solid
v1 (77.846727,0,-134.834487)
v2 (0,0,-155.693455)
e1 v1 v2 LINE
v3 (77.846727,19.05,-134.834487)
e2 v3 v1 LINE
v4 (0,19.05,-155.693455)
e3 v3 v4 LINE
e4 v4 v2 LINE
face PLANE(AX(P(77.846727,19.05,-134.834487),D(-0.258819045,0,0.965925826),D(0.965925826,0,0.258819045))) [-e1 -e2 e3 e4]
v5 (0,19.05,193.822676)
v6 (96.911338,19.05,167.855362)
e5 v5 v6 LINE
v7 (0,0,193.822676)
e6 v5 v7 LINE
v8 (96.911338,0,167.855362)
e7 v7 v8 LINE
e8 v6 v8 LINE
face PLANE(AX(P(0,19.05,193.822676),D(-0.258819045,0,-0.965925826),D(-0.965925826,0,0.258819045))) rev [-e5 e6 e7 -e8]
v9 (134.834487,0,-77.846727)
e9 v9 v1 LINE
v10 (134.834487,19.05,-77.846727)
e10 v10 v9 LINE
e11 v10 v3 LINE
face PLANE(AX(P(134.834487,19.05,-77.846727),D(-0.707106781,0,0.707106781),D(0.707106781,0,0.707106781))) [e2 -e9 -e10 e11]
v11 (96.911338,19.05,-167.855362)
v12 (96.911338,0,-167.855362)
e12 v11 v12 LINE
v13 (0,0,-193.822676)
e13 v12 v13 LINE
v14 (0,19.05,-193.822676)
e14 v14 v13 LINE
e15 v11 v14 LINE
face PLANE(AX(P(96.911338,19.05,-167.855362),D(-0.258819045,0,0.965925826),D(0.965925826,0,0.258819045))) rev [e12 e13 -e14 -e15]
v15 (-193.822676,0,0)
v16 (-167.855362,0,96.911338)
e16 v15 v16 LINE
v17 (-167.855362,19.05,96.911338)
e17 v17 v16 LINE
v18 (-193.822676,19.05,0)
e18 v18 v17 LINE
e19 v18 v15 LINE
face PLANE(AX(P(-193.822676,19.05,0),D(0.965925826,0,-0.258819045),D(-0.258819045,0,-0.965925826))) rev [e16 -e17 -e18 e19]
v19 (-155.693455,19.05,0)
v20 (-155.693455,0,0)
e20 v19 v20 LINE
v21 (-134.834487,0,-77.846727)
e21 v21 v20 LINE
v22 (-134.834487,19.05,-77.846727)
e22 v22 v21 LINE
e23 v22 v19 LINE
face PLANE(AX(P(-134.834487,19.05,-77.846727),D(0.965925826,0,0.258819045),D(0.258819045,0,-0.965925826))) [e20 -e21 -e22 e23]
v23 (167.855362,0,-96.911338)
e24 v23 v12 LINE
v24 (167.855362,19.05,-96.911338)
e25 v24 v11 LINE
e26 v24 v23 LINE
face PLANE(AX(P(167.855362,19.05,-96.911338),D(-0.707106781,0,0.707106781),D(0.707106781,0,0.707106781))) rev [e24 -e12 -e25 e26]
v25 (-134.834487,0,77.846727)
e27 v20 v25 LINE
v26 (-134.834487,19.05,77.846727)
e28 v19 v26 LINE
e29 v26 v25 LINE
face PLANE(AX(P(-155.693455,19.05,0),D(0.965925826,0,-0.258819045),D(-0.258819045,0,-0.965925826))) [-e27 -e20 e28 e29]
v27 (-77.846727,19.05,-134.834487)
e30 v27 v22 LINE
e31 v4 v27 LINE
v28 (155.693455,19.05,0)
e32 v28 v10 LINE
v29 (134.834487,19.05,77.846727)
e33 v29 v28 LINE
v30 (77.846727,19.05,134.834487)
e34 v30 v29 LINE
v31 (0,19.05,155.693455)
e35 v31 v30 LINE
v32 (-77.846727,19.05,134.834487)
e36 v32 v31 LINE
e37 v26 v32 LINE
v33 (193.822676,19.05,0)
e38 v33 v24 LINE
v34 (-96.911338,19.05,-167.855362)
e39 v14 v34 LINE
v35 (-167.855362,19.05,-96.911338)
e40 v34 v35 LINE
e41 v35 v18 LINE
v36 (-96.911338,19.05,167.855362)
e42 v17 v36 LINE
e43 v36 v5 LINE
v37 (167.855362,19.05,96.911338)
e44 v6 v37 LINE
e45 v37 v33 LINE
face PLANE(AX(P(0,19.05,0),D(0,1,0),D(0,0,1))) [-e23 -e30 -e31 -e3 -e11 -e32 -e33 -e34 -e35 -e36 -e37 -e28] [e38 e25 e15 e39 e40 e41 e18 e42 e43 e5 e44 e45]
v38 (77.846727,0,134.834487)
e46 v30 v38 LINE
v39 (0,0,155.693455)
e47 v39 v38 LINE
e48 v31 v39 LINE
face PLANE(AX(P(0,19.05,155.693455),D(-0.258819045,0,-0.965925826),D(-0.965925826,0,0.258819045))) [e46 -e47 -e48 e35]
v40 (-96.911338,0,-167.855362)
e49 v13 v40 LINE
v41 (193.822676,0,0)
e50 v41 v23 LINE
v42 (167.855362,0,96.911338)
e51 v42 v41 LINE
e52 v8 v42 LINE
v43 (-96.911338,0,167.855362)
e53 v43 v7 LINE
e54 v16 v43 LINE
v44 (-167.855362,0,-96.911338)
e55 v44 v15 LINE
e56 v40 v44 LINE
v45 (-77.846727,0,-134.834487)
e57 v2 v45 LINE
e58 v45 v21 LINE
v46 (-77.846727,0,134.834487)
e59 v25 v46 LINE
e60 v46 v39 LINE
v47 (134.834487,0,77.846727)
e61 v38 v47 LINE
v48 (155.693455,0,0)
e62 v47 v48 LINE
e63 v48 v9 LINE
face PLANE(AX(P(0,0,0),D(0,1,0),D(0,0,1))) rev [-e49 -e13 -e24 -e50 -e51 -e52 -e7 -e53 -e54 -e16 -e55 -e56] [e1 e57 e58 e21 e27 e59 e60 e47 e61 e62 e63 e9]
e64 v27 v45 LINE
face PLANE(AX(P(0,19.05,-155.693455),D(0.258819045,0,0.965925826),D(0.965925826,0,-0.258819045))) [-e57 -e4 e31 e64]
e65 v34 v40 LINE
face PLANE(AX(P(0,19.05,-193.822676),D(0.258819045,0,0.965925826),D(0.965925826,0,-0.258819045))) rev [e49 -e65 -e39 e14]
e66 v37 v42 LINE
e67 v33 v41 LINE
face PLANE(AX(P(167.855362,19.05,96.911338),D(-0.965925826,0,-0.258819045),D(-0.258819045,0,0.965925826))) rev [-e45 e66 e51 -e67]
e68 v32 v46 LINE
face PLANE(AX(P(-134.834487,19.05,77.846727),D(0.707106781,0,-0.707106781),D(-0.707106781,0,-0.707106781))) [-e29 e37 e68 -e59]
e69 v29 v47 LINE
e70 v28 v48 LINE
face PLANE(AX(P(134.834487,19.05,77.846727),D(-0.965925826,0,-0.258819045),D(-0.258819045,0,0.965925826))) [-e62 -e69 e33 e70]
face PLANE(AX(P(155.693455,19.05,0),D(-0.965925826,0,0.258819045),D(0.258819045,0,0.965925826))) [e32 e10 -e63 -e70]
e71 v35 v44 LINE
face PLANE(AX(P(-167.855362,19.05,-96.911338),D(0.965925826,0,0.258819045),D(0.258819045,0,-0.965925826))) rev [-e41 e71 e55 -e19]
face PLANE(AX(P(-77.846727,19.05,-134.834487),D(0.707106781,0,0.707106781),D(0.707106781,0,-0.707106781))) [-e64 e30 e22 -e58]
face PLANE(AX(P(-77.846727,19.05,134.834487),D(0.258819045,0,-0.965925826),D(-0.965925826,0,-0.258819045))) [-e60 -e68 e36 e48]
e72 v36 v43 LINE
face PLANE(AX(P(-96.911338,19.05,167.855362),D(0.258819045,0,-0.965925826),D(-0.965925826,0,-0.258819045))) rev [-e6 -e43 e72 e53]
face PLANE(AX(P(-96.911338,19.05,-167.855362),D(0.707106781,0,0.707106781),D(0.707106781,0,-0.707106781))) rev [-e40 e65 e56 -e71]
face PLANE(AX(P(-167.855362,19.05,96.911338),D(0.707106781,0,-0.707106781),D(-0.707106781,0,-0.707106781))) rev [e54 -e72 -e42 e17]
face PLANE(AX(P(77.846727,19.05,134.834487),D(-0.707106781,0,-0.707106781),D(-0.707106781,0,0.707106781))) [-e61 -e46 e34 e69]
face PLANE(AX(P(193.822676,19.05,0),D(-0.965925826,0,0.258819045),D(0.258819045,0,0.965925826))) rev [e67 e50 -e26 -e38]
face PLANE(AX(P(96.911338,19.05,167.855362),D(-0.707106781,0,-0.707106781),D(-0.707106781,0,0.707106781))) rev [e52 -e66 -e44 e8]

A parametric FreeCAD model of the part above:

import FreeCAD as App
import Part
import Sketcher
from FreeCAD import Vector
Q = App.Units.Quantity

doc = App.newDocument("Part")
body = doc.addObject("PartDesign::Body", "Body")

# Sketch on XZ plane
sketch1 = body.newObject("Sketcher::SketchObject", "Sketch")
sketch1.AttachmentSupport = (doc.getObject("XZ_Plane"), [""])
sketch1.MapMode = "FlatFace"
sketch1.addGeometry(Part.LineSegment(Vector(-194, 0, 0), Vector(-168, 97, 0)), False)
sketch1.addGeometry(Part.LineSegment(Vector(-168, 97, 0), Vector(-97, 168, 0)), False)
sketch1.addGeometry(Part.LineSegment(Vector(-97, 168, 0), Vector(0, 194, 0)), False)
sketch1.addGeometry(Part.LineSegment(Vector(0, 194, 0), Vector(97, 168, 0)), False)
sketch1.addGeometry(Part.LineSegment(Vector(97, 168, 0), Vector(168, 97, 0)), False)
sketch1.addGeometry(Part.LineSegment(Vector(168, 97, 0), Vector(194, 0, 0)), False)
sketch1.addGeometry(Part.LineSegment(Vector(194, 0, 0), Vector(168, -97, 0)), False)
sketch1.addGeometry(Part.LineSegment(Vector(168, -97, 0), Vector(97, -168, 0)), False)
sketch1.addGeometry(Part.LineSegment(Vector(97, -168, 0), Vector(0, -194, 0)), False)
sketch1.addGeometry(Part.LineSegment(Vector(0, -194, 0), Vector(-97, -168, 0)), False)
sketch1.addGeometry(Part.LineSegment(Vector(-97, -168, 0), Vector(-168, -97, 0)), False)
sketch1.addGeometry(Part.LineSegment(Vector(-168, -97, 0), Vector(-194, 0, 0)), False)
sketch1.addGeometry(Part.LineSegment(Vector(-135, 78, 0), Vector(-156, 0, 0)), False)
sketch1.addGeometry(Part.LineSegment(Vector(-156, 0, 0), Vector(-135, -78, 0)), False)
sketch1.addGeometry(Part.LineSegment(Vector(-135, -78, 0), Vector(-78, -135, 0)), False)
sketch1.addGeometry(Part.LineSegment(Vector(-78, -135, 0), Vector(0, -156, 0)), False)
sketch1.addGeometry(Part.LineSegment(Vector(0, -156, 0), Vector(78, -135, 0)), False)
sketch1.addGeometry(Part.LineSegment(Vector(78, -135, 0), Vector(135, -78, 0)), False)
sketch1.addGeometry(Part.LineSegment(Vector(135, -78, 0), Vector(156, 0, 0)), False)
sketch1.addGeometry(Part.LineSegment(Vector(156, 0, 0), Vector(135, 78, 0)), False)
sketch1.addGeometry(Part.LineSegment(Vector(135, 78, 0), Vector(78, 135, 0)), False)
sketch1.addGeometry(Part.LineSegment(Vector(78, 135, 0), Vector(0, 156, 0)), False)
sketch1.addGeometry(Part.LineSegment(Vector(0, 156, 0), Vector(-78, 135, 0)), False)
sketch1.addGeometry(Part.LineSegment(Vector(-78, 135, 0), Vector(-135, 78, 0)), False)
sketch1.addConstraint(Sketcher.Constraint("Coincident", 0, 2, 1, 1))
sketch1.addConstraint(Sketcher.Constraint("Coincident", 1, 2, 2, 1))
sketch1.addConstraint(Sketcher.Constraint("Coincident", 2, 2, 3, 1))
sketch1.addConstraint(Sketcher.Constraint("Coincident", 3, 2, 4, 1))
sketch1.addConstraint(Sketcher.Constraint("Coincident", 4, 2, 5, 1))
sketch1.addConstraint(Sketcher.Constraint("Coincident", 5, 2, 6, 1))
sketch1.addConstraint(Sketcher.Constraint("Coincident", 6, 2, 7, 1))
sketch1.addConstraint(Sketcher.Constraint("Coincident", 7, 2, 8, 1))
sketch1.addConstraint(Sketcher.Constraint("Coincident", 8, 2, 9, 1))
sketch1.addConstraint(Sketcher.Constraint("Coincident", 9, 2, 10, 1))
sketch1.addConstraint(Sketcher.Constraint("Coincident", 10, 2, 11, 1))
sketch1.addConstraint(Sketcher.Constraint("Coincident", 11, 2, 0, 1))
sketch1.addConstraint(Sketcher.Constraint("Coincident", 12, 2, 13, 1))
sketch1.addConstraint(Sketcher.Constraint("Coincident", 13, 2, 14, 1))
sketch1.addConstraint(Sketcher.Constraint("Coincident", 14, 2, 15, 1))
sketch1.addConstraint(Sketcher.Constraint("Coincident", 15, 2, 16, 1))
sketch1.addConstraint(Sketcher.Constraint("Coincident", 16, 2, 17, 1))
sketch1.addConstraint(Sketcher.Constraint("Coincident", 17, 2, 18, 1))
sketch1.addConstraint(Sketcher.Constraint("Coincident", 18, 2, 19, 1))
sketch1.addConstraint(Sketcher.Constraint("Coincident", 19, 2, 20, 1))
sketch1.addConstraint(Sketcher.Constraint("Coincident", 20, 2, 21, 1))
sketch1.addConstraint(Sketcher.Constraint("Coincident", 21, 2, 22, 1))
sketch1.addConstraint(Sketcher.Constraint("Coincident", 22, 2, 23, 1))
sketch1.addConstraint(Sketcher.Constraint("Coincident", 23, 2, 12, 1))
sketch1.addConstraint(Sketcher.Constraint("Symmetric", 0, 2, 6, 2, -1, 1))
sketch1.addConstraint(Sketcher.Constraint("Symmetric", 1, 2, 7, 2, -1, 1))
sketch1.addConstraint(Sketcher.Constraint("Symmetric", 2, 2, 8, 2, -1, 1))
sketch1.addConstraint(Sketcher.Constraint("Symmetric", 3, 2, 9, 2, -1, 1))
sketch1.addConstraint(Sketcher.Constraint("Symmetric", 4, 2, 10, 2, -1, 1))
sketch1.addConstraint(Sketcher.Constraint("Symmetric", 5, 2, 11, 2, -1, 1))
sketch1.addConstraint(Sketcher.Constraint("Symmetric", 12, 2, 18, 2, -1, 1))
sketch1.addConstraint(Sketcher.Constraint("Symmetric", 13, 2, 19, 2, -1, 1))
sketch1.addConstraint(Sketcher.Constraint("Symmetric", 14, 2, 20, 2, -1, 1))
sketch1.addConstraint(Sketcher.Constraint("Symmetric", 15, 2, 21, 2, -1, 1))
sketch1.addConstraint(Sketcher.Constraint("Symmetric", 16, 2, 22, 2, -1, 1))
sketch1.addConstraint(Sketcher.Constraint("Symmetric", 17, 2, 23, 2, -1, 1))
sketch1.addConstraint(Sketcher.Constraint("Symmetric", 1, 2, 3, 2, -2))
sketch1.addConstraint(Sketcher.Constraint("Symmetric", 0, 2, 4, 2, -2))
sketch1.addConstraint(Sketcher.Constraint("Symmetric", 14, 2, 16, 2, -2))
sketch1.addConstraint(Sketcher.Constraint("Symmetric", 13, 2, 17, 2, -2))
sketch1.addConstraint(Sketcher.Constraint("PointOnObject", 2, 2, -2))
sketch1.addConstraint(Sketcher.Constraint("PointOnObject", 5, 2, -1))
sketch1.addConstraint(Sketcher.Constraint("PointOnObject", 12, 2, -1))
sketch1.addConstraint(Sketcher.Constraint("PointOnObject", 15, 2, -2))
sketch1.addConstraint(Sketcher.Constraint("Perpendicular", 0, 3))
sketch1.addConstraint(Sketcher.Constraint("Perpendicular", 1, 4))
sketch1.addConstraint(Sketcher.Constraint("Perpendicular", 9, 12))
sketch1.addConstraint(Sketcher.Constraint("Parallel", 10, 14))
sketch1.addConstraint(Sketcher.Constraint("Perpendicular", 12, 15))
sketch1.addConstraint(Sketcher.Constraint("Equal", 0, 1))
sketch1.addConstraint(Sketcher.Constraint("Equal", 1, 2))
sketch1.addConstraint(Sketcher.Constraint("Equal", 13, 14))
sketch1.addConstraint(Sketcher.Constraint("Equal", 14, 15))
sketch1.addConstraint(Sketcher.Constraint("Angle", 0, Q("75 deg")))
sketch1.addConstraint(Sketcher.Constraint("Distance", 0, Q("3.95 in")))
sketch1.addConstraint(Sketcher.Constraint("DistanceX", 11, 2, 12, 2, Q("38.129222 mm")))
pad1 = body.newObject("PartDesign::Pad", "Pad")
pad1.Profile = sketch1
pad1.Length = Q("0.75 in")
pad1.Reversed = True

doc.recompute()
